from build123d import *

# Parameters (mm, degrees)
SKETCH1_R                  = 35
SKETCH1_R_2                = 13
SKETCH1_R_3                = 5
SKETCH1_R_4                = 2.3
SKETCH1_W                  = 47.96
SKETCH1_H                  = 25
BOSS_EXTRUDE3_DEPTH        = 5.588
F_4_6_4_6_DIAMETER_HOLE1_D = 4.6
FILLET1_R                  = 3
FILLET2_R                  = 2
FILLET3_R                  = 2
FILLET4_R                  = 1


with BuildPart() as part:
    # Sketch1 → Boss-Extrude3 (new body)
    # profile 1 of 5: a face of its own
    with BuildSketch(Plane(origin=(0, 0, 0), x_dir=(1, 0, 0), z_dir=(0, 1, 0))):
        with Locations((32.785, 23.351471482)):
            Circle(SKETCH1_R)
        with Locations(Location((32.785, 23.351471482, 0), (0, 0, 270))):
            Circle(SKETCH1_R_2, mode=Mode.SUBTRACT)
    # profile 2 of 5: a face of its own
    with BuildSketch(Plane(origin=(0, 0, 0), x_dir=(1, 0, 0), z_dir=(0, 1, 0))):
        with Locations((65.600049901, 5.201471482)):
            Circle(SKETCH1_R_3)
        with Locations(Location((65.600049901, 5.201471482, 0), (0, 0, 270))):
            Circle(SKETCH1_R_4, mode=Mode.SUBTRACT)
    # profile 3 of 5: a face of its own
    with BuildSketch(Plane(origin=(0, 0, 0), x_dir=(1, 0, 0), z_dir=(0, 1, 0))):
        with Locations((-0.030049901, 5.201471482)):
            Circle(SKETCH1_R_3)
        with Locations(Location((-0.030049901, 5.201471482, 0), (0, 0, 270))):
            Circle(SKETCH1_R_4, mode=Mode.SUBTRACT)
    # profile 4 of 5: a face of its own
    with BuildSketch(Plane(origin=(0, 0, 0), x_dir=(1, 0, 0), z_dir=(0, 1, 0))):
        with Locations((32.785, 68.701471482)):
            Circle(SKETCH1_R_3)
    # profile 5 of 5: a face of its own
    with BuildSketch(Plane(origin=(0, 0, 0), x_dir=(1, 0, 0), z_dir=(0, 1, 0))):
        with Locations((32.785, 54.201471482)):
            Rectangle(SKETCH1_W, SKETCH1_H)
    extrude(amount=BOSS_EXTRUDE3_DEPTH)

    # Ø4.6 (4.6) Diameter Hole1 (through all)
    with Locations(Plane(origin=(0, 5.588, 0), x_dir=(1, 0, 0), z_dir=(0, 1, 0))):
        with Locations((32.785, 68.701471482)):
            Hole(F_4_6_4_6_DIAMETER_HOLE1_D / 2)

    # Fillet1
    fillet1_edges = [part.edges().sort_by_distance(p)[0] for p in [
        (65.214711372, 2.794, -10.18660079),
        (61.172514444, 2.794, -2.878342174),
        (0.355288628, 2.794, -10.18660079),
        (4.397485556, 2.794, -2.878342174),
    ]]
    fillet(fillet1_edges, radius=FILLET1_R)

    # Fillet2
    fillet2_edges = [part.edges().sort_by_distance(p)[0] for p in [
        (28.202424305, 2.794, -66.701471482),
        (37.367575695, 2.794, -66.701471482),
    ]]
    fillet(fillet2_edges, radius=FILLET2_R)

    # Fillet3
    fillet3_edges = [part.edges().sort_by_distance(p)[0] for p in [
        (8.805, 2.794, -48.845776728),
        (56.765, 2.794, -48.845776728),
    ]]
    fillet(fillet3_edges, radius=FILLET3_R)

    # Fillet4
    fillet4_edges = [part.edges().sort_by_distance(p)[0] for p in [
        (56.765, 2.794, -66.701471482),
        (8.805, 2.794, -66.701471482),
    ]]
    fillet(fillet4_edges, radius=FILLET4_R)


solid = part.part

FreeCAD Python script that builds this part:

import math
import FreeCAD as App
import Part
import Sketcher


def edges_at(feature, points):
    """Names of the edges that pass closest to the given points."""
    edges = feature.Shape.Edges
    near = lambda p: min(range(len(edges)), key=lambda i: edges[i].distToShape(Part.Vertex(*p))[0])
    return sorted({f"Edge{near(p) + 1}" for p in points})

doc = App.newDocument("Part")
body = doc.addObject("PartDesign::Body", "Body")

# Sketch on XZ plane
sketch1 = body.newObject("Sketcher::SketchObject", "Sketch")
sketch1.AttachmentSupport = (doc.getObject("XZ_Plane"), [""])
sketch1.MapMode = "FlatFace"
sketch1.addGeometry([
    Part.ArcOfCircle(Part.Circle(App.Vector(32.8, -23.4, 0), App.Vector(0, 0, 1), 35), math.radians(-47), math.radians(22)),  # 0
    Part.LineSegment(App.Vector(56.8, -48.8, 0), App.Vector(56.8, -66.7, 0)),  # 1
    Part.LineSegment(App.Vector(56.8, -66.7, 0), App.Vector(37.4, -66.7, 0)),  # 2
    Part.ArcOfCircle(Part.Circle(App.Vector(32.8, -68.7, 0), App.Vector(0, 0, 1), 5), math.radians(156), math.radians(384)),  # 3
    Part.LineSegment(App.Vector(28.2, -66.7, 0), App.Vector(8.8, -66.7, 0)),  # 4
    Part.LineSegment(App.Vector(8.8, -66.7, 0), App.Vector(8.8, -48.8, 0)),  # 5
    Part.ArcOfCircle(Part.Circle(App.Vector(32.8, -23.4, 0), App.Vector(0, 0, 1), 35), math.radians(158), math.radians(227)),  # 6
    Part.ArcOfCircle(Part.Circle(App.Vector(0, -5.2, 0), App.Vector(0, 0, 1), 5), math.radians(28), math.radians(274)),  # 7
    Part.ArcOfCircle(Part.Circle(App.Vector(32.8, -23.4, 0), App.Vector(0, 0, 1), 35), math.radians(36), math.radians(144)),  # 8
    Part.ArcOfCircle(Part.Circle(App.Vector(65.6, -5.2, 0), App.Vector(0, 0, 1), 5), math.radians(-94), math.radians(152)),  # 9
    Part.Circle(App.Vector(32.8, -23.4, 0), App.Vector(0, 0, 1), 13),  # 10
    Part.Circle(App.Vector(65.6, -5.2, 0), App.Vector(0, 0, 1), 2.3),  # 11
    Part.Circle(App.Vector(0, -5.2, 0), App.Vector(0, 0, 1), 2.3),  # 12
], False)
sketch1.addConstraint([
    Sketcher.Constraint("Coincident", 0, 1, 1, 1),
    Sketcher.Constraint("Coincident", 1, 2, 2, 1),
    Sketcher.Constraint("Coincident", 2, 2, 3, 2),
    Sketcher.Constraint("Coincident", 3, 1, 4, 1),
    Sketcher.Constraint("Coincident", 4, 2, 5, 1),
    Sketcher.Constraint("Coincident", 5, 2, 6, 2),
    Sketcher.Constraint("Coincident", 6, 1, 7, 2),
    Sketcher.Constraint("Coincident", 7, 1, 8, 2),
    Sketcher.Constraint("Coincident", 8, 1, 9, 2),
    Sketcher.Constraint("Coincident", 9, 1, 0, 2),
    Sketcher.Constraint("Vertical", 1),
    Sketcher.Constraint("Horizontal", 2),
    Sketcher.Constraint("Horizontal", 4),
    Sketcher.Constraint("Vertical", 5),
    Sketcher.Constraint("Coincident", 6, 3, 0, 3),
    Sketcher.Constraint("Coincident", 8, 3, 0, 3),
    Sketcher.Constraint("Coincident", 10, 3, 0, 3),
    Sketcher.Constraint("Coincident", 11, 3, 9, 3),
    Sketcher.Constraint("Coincident", 12, 3, 7, 3),
    Sketcher.Constraint("Equal", 0, 6),
    Sketcher.Constraint("Equal", 3, 7),
    Sketcher.Constraint("Equal", 6, 8),
    Sketcher.Constraint("Equal", 7, 9),
    Sketcher.Constraint("Equal", 11, 12),
    Sketcher.Constraint("Horizontal", 7, 3, 9, 3),
    Sketcher.Constraint("Horizontal", 2, 2, 3, 1),
    Sketcher.Constraint("Horizontal", 0, 1, 5, 2),
    Sketcher.Constraint("Horizontal", 7, 1, 8, 1),
    Sketcher.Constraint("Vertical", 0, 3, 3, 3),
    Sketcher.Constraint("Diameter", 10, 26.0),
    Sketcher.Constraint("Radius", 0, 35.0),
    Sketcher.Constraint("Radius", 3, 5.0),
    Sketcher.Constraint("Diameter", 11, 4.6),
    Sketcher.Constraint("DistanceY", 3, 3, 1, 2, 2.0),
    Sketcher.Constraint("DistanceY", 3, 3, 7, 3, 63.5),
    Sketcher.Constraint("DistanceY", 3, 3, 0, 3, 45.35),
    Sketcher.Constraint("DistanceX", 3, 3, 0, 1, 23.98),
    Sketcher.Constraint("DistanceX", -1, 1, 0, 3, 32.785),
    Sketcher.Constraint("DistanceY", 6, 1, -1, 1, 10.186601),
    Sketcher.Constraint("DistanceX", 7, 3, 9, 3, 65.6301),
])
pad1 = body.newObject("PartDesign::Pad", "Pad")
pad1.Profile = sketch1
pad1.Length = 5.588
pad1.Reversed = True

# Sketch on XZ plane
sketch2 = body.newObject("Sketcher::SketchObject", "Sketch001")
sketch2.AttachmentSupport = (doc.getObject("XZ_Plane"), [""])
sketch2.MapMode = "FlatFace"
sketch2.AttachmentOffset = App.Placement(App.Vector(0, 0, -5.588), App.Rotation())
sketch2.addGeometry(Part.Circle(App.Vector(32.8, -68.7, 0), App.Vector(0, 0, 1), 2.3), False)
sketch2.addConstraint([
    Sketcher.Constraint("Diameter", 0, 4.6),
    Sketcher.Constraint("DistanceX", -1, 1, 0, 3, 32.785),
    Sketcher.Constraint("DistanceY", 0, 3, -1, 1, 68.701471),
])
doc.recompute()
hole = body.newObject("PartDesign::Hole", "Hole")
hole.Profile = sketch2
hole.ThreadType = "None"
hole.Diameter = 4.6
hole.DepthType = "ThroughAll"
hole.Reversed = True
doc.recompute()

fillet = body.newObject("PartDesign::Fillet", "Fillet")
fillet.Base = (hole, edges_at(hole, [
    (65.215, 2.794, -10.187),
    (61.173, 2.794, -2.878),
    (0.355, 2.794, -10.187),
    (4.397, 2.794, -2.878),
]))
fillet.Radius = 3
doc.recompute()

fillet2 = body.newObject("PartDesign::Fillet", "Fillet001")
fillet2.Base = (fillet, edges_at(fillet, [(28.202, 2.794, -66.701), (37.368, 2.794, -66.701)]))
fillet2.Radius = 2
doc.recompute()

fillet3 = body.newObject("PartDesign::Fillet", "Fillet002")
fillet3.Base = (fillet2, edges_at(fillet2, [(8.805, 2.794, -48.846), (56.765, 2.794, -48.846)]))
fillet3.Radius = 2
doc.recompute()

fillet4 = body.newObject("PartDesign::Fillet", "Fillet003")
fillet4.Base = (fillet3, edges_at(fillet3, [(56.765, 2.794, -66.701), (8.805, 2.794, -66.701)]))
fillet4.Radius = 1

doc.recompute()
